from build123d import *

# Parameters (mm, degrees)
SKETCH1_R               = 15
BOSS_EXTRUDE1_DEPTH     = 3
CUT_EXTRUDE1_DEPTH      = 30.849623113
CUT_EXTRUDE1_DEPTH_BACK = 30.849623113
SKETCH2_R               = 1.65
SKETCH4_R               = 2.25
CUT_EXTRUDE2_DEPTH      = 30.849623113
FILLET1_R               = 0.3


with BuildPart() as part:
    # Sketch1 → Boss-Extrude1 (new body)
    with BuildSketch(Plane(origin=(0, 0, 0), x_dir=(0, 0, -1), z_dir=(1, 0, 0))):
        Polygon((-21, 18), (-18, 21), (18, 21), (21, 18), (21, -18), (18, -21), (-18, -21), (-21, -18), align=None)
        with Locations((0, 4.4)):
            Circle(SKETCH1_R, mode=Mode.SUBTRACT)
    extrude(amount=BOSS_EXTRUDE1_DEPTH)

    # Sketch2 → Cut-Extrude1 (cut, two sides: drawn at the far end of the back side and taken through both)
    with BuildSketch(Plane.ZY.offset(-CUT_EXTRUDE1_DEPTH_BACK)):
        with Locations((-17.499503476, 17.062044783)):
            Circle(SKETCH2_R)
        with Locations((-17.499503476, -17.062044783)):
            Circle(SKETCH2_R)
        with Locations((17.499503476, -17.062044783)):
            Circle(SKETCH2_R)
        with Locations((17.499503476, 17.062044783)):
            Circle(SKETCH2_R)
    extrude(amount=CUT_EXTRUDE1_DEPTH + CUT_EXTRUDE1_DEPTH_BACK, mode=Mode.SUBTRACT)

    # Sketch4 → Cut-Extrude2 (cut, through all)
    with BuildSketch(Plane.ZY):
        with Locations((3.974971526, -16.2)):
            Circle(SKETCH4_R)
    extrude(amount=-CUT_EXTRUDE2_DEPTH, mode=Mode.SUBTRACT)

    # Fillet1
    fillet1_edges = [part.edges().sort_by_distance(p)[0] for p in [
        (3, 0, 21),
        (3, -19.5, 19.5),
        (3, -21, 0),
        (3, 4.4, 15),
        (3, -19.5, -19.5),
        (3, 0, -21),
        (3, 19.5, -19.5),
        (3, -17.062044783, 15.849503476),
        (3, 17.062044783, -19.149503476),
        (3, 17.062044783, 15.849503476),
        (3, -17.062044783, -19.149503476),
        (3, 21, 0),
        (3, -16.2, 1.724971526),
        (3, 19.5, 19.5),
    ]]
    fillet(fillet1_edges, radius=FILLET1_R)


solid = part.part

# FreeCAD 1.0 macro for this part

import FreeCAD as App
import Part
import Sketcher

V = App.Vector


def edges_at(feature, points):
    """Names of the edges that pass closest to the given points."""
    edges = feature.Shape.Edges
    near = lambda p: min(range(len(edges)), key=lambda i: edges[i].distToShape(Part.Vertex(*p))[0])
    return sorted({f"Edge{near(p) + 1}" for p in points})

doc = App.newDocument("Part")
params = doc.addObject("Spreadsheet::Sheet", "Params")
for row, (alias, value) in enumerate([
    ("sketch1_diameter", "30 mm"),
    ("sketch1_width", "36 mm"),
    ("pad1_length", "3 mm"),
    ("sketch2_diameter", "3.3 mm"),
    ("sketch3_diameter", "4.5 mm"),
    ("fillet_radius", "0.3 mm"),
], start=1):
    params.set(f"A{row}", alias)
    params.set(f"B{row}", "=" + value)
    params.setAlias(f"B{row}", alias)

body = doc.addObject("PartDesign::Body", "Body")

# Sketch on YZ plane
sketch1 = body.newObject("Sketcher::SketchObject", "Sketch")
sketch1.AttachmentSupport = (doc.getObject("YZ_Plane"), [""])
sketch1.MapMode = "FlatFace"
sketch1.addGeometry([
    Part.LineSegment(V(21, 18, 0), V(18, 21, 0)),  # 0
    Part.LineSegment(V(18, 21, 0), V(-18, 21, 0)),  # 1
    Part.LineSegment(V(-18, 21, 0), V(-21, 18, 0)),  # 2
    Part.LineSegment(V(-21, 18, 0), V(-21, -18, 0)),  # 3
    Part.LineSegment(V(-21, -18, 0), V(-18, -21, 0)),  # 4
    Part.LineSegment(V(-18, -21, 0), V(18, -21, 0)),  # 5
    Part.LineSegment(V(18, -21, 0), V(21, -18, 0)),  # 6
    Part.LineSegment(V(21, -18, 0), V(21, 18, 0)),  # 7
    Part.Circle(V(4.4, 0, 0), V(0, 0, 1), 15),  # 8
], False)
sketch1.addConstraint([
    Sketcher.Constraint("Coincident", 0, 2, 1, 1),
    Sketcher.Constraint("Coincident", 1, 2, 2, 1),
    Sketcher.Constraint("Coincident", 2, 2, 3, 1),
    Sketcher.Constraint("Coincident", 3, 2, 4, 1),
    Sketcher.Constraint("Coincident", 4, 2, 5, 1),
    Sketcher.Constraint("Coincident", 5, 2, 6, 1),
    Sketcher.Constraint("Coincident", 6, 2, 7, 1),
    Sketcher.Constraint("Coincident", 7, 2, 0, 1),
    Sketcher.Constraint("Horizontal", 1),
    Sketcher.Constraint("Vertical", 3),
    Sketcher.Constraint("Horizontal", 5),
    Sketcher.Constraint("Vertical", 7),
    Sketcher.Constraint("Symmetric", 0, 2, 4, 2, -1, 1),
    Sketcher.Constraint("Symmetric", 2, 2, 6, 2, -1, 1),
    Sketcher.Constraint("PointOnObject", 8, 3, -1),
    Sketcher.Constraint("Perpendicular", 0, 2),
    Sketcher.Constraint("Perpendicular", 2, 4),
    Sketcher.Constraint("Perpendicular", 4, 6),
    Sketcher.Constraint("Horizontal", 3, 2, 6, 2),
    Sketcher.Constraint("Vertical", 1, 2, 4, 2),
    Sketcher.Constraint("Equal", 5, 3),
    Sketcher.Constraint("Diameter", 8, 30.0),
    Sketcher.Constraint("DistanceX", 1, 2, 1, 1, 36.0),
    Sketcher.Constraint("DistanceY", -1, 1, 0, 2, 21.0),
    Sketcher.Constraint("DistanceX", -1, 1, 8, 3, 4.4),
])
sketch1.setExpression("Constraints[21]", "Params.sketch1_diameter")
sketch1.setExpression("Constraints[22]", "Params.sketch1_width")
pad1 = body.newObject("PartDesign::Pad", "Pad")
pad1.Profile = sketch1
pad1.setExpression("Length", "Params.pad1_length")

# Sketch on YZ plane
sketch2 = body.newObject("Sketcher::SketchObject", "Sketch001")
sketch2.AttachmentSupport = (doc.getObject("YZ_Plane"), [""])
sketch2.MapMode = "FlatFace"
sketch2.addGeometry([
    Part.Circle(V(17.062045, -17.499503, 0), V(0, 0, 1), 1.65),
    Part.Circle(V(-17.062045, -17.499503, 0), V(0, 0, 1), 1.65),
    Part.Circle(V(-17.062045, 17.499503, 0), V(0, 0, 1), 1.65),
    Part.Circle(V(17.062045, 17.499503, 0), V(0, 0, 1), 1.65),
], False)
sketch2.addConstraint([
    Sketcher.Constraint("Equal", 0, 1),
    Sketcher.Constraint("Equal", 1, 2),
    Sketcher.Constraint("Equal", 2, 3),
    Sketcher.Constraint("Symmetric", 0, 3, 2, 3, -1, 1),
    Sketcher.Constraint("Symmetric", 1, 3, 3, 3, -1, 1),
    Sketcher.Constraint("Symmetric", 0, 3, 1, 3, -2),
    Sketcher.Constraint("Diameter", 0, 3.3),
    Sketcher.Constraint("DistanceX", 1, 3, 0, 3, 34.12409),
    Sketcher.Constraint("DistanceY", 0, 3, -1, 1, 17.499503),
])
sketch2.setExpression("Constraints[6]", "Params.sketch2_diameter")
pocket1 = body.newObject("PartDesign::Pocket", "Pocket")
pocket1.Profile = sketch2
pocket1.Type = "ThroughAll"
pocket1.Midplane = True

# Sketch on YZ plane
sketch3 = body.newObject("Sketcher::SketchObject", "Sketch002")
sketch3.AttachmentSupport = (doc.getObject("YZ_Plane"), [""])
sketch3.MapMode = "FlatFace"
sketch3.addGeometry(Part.Circle(V(-16.2, 3.974972, 0), V(0, 0, 1), 2.25), False)
sketch3.addConstraint([
    Sketcher.Constraint("Diameter", 0, 4.5),
    Sketcher.Constraint("DistanceX", 0, 3, -1, 1, 16.2),
    Sketcher.Constraint("DistanceY", -1, 1, 0, 3, 3.974972),
])
sketch3.setExpression("Constraints[0]", "Params.sketch3_diameter")
pocket2 = body.newObject("PartDesign::Pocket", "Pocket001")
pocket2.Profile = sketch3
pocket2.Type = "ThroughAll"
pocket2.Reversed = True
doc.recompute()

fillet = body.newObject("PartDesign::Fillet", "Fillet")
fillet.Base = (pocket2, edges_at(pocket2, [
    (3, 0, 21),
    (3, -19.5, 19.5),
    (3, -21, 0),
    (3, 4.4, 15),
    (3, -19.5, -19.5),
    (3, 0, -21),
    (3, 19.5, -19.5),
    (3, -17.062, 15.85),
    (3, 17.062, -19.15),
    (3, 17.062, 15.85),
    (3, -17.062, -19.15),
    (3, 21, 0),
    (3, -16.2, 1.725),
    (3, 19.5, 19.5),
]))
fillet.setExpression("Radius", "Params.fillet_radius")

doc.recompute()
